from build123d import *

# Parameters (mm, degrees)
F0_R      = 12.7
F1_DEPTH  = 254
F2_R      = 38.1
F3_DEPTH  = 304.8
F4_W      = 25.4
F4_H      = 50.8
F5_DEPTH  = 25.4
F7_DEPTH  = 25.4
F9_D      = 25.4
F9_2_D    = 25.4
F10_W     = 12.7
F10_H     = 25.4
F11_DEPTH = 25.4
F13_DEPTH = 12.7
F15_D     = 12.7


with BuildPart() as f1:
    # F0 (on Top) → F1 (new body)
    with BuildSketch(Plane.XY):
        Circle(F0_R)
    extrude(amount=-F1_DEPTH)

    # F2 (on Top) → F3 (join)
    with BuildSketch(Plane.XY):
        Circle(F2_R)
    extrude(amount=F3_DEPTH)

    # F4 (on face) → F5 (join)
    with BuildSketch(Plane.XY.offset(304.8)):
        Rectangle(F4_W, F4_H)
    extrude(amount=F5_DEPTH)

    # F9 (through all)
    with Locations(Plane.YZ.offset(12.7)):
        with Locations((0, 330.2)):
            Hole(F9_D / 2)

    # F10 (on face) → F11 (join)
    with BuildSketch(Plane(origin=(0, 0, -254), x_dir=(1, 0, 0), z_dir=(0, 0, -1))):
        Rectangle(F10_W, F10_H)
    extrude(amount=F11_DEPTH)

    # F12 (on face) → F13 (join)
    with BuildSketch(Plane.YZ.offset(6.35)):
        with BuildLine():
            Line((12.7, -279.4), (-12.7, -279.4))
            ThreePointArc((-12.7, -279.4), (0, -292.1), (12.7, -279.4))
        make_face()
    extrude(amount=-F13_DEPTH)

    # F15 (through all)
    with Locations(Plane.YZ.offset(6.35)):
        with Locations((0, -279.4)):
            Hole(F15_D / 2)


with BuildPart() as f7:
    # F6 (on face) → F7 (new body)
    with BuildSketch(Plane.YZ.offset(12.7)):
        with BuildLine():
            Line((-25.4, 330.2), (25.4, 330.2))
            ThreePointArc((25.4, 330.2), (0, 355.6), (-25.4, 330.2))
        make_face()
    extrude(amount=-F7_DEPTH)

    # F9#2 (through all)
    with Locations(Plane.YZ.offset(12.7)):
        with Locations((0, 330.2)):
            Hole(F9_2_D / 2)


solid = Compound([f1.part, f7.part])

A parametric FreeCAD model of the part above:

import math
import FreeCAD as App
import Part
import Sketcher

V = App.Vector
Q = App.Units.Quantity

doc = App.newDocument("Part")
body = doc.addObject("PartDesign::Body", "Body")

# Sketch on XY plane
sketch1 = doc.addObject("Sketcher::SketchObject", "Sketch")
body.addObject(sketch1)
sketch1.AttachmentSupport = (doc.XY_Plane, [""])
sketch1.MapMode = "FlatFace"
sketch1.addGeometry(Part.Circle(V(0, 0, 0), V(0, 0, 1), 12.7), False)
sketch1.addConstraint(Sketcher.Constraint("Coincident", 0, 3, -1, 1))
sketch1.addConstraint(Sketcher.Constraint("Diameter", 0, Q("1 in")))
pad1 = doc.addObject("PartDesign::Pad", "Pad")
body.addObject(pad1)
pad1.Profile = sketch1
pad1.Length = Q("10 in")
pad1.Reversed = True

# Sketch on XY plane
sketch2 = doc.addObject("Sketcher::SketchObject", "Sketch001")
body.addObject(sketch2)
sketch2.AttachmentSupport = (doc.XY_Plane, [""])
sketch2.MapMode = "FlatFace"
sketch2.addGeometry(Part.Circle(V(0, 0, 0), V(0, 0, 1), 38.1), False)
sketch2.addConstraint(Sketcher.Constraint("Coincident", 0, 3, -1, 1))
sketch2.addConstraint(Sketcher.Constraint("Diameter", 0, Q("3 in")))
pad2 = doc.addObject("PartDesign::Pad", "Pad001")
body.addObject(pad2)
pad2.Profile = sketch2
pad2.Length = Q("12 in")

# Sketch on XY plane
sketch3 = doc.addObject("Sketcher::SketchObject", "Sketch002")
body.addObject(sketch3)
sketch3.AttachmentSupport = (doc.XY_Plane, [""])
sketch3.MapMode = "FlatFace"
sketch3.AttachmentOffset = App.Placement(V(0, 0, 12 * 25.4), App.Rotation())
sketch3.addGeometry(Part.LineSegment(V(-12.7, 25.4, 0), V(-12.7, -25.4, 0)), False)
sketch3.addGeometry(Part.LineSegment(V(-12.7, -25.4, 0), V(12.7, -25.4, 0)), False)
sketch3.addGeometry(Part.LineSegment(V(12.7, -25.4, 0), V(12.7, 25.4, 0)), False)
sketch3.addGeometry(Part.LineSegment(V(12.7, 25.4, 0), V(-12.7, 25.4, 0)), False)
sketch3.addConstraint(Sketcher.Constraint("Coincident", 0, 2, 1, 1))
sketch3.addConstraint(Sketcher.Constraint("Coincident", 1, 2, 2, 1))
sketch3.addConstraint(Sketcher.Constraint("Coincident", 2, 2, 3, 1))
sketch3.addConstraint(Sketcher.Constraint("Coincident", 3, 2, 0, 1))
sketch3.addConstraint(Sketcher.Constraint("Vertical", 0))
sketch3.addConstraint(Sketcher.Constraint("Horizontal", 1))
sketch3.addConstraint(Sketcher.Constraint("Vertical", 2))
sketch3.addConstraint(Sketcher.Constraint("Horizontal", 3))
sketch3.addConstraint(Sketcher.Constraint("Symmetric", 0, 2, 2, 2, -1, 1))
sketch3.addConstraint(Sketcher.Constraint("DistanceX", 1, 1, 1, 2, Q("1 in")))
sketch3.addConstraint(Sketcher.Constraint("DistanceY", 0, 2, 0, 1, Q("2 in")))
pad3 = doc.addObject("PartDesign::Pad", "Pad002")
body.addObject(pad3)
pad3.Profile = sketch3
pad3.Length = Q("1 in")

# Sketch on YZ plane
sketch4 = doc.addObject("Sketcher::SketchObject", "Sketch003")
body.addObject(sketch4)
sketch4.AttachmentSupport = (doc.YZ_Plane, [""])
sketch4.MapMode = "FlatFace"
sketch4.AttachmentOffset = App.Placement(V(0, 0, 0.5 * 25.4), App.Rotation())
sketch4.addGeometry(Part.Circle(V(0, 330.2, 0), V(0, 0, 1), 12.7), False)
sketch4.addConstraint(Sketcher.Constraint("PointOnObject", 0, 3, -2))
sketch4.addConstraint(Sketcher.Constraint("Diameter", 0, Q("1 in")))
sketch4.addConstraint(Sketcher.Constraint("DistanceY", -1, 1, 0, 3, Q("13 in")))
doc.recompute()
hole = doc.addObject("PartDesign::Hole", "Hole")
body.addObject(hole)
hole.Profile = sketch4
hole.ThreadType = "None"
hole.Diameter = Q("1 in")
hole.DepthType = "ThroughAll"

# Sketch on XY plane
sketch5 = doc.addObject("Sketcher::SketchObject", "Sketch004")
body.addObject(sketch5)
sketch5.AttachmentSupport = (doc.XY_Plane, [""])
sketch5.MapMode = "FlatFace"
sketch5.AttachmentOffset = App.Placement(V(0, 0, -10 * 25.4), App.Rotation())
sketch5.addGeometry(Part.LineSegment(V(-6.35, -12.7, 0), V(-6.35, 12.7, 0)), False)
sketch5.addGeometry(Part.LineSegment(V(-6.35, 12.7, 0), V(6.35, 12.7, 0)), False)
sketch5.addGeometry(Part.LineSegment(V(6.35, 12.7, 0), V(6.35, -12.7, 0)), False)
sketch5.addGeometry(Part.LineSegment(V(6.35, -12.7, 0), V(-6.35, -12.7, 0)), False)
sketch5.addConstraint(Sketcher.Constraint("Coincident", 0, 2, 1, 1))
sketch5.addConstraint(Sketcher.Constraint("Coincident", 1, 2, 2, 1))
sketch5.addConstraint(Sketcher.Constraint("Coincident", 2, 2, 3, 1))
sketch5.addConstraint(Sketcher.Constraint("Coincident", 3, 2, 0, 1))
sketch5.addConstraint(Sketcher.Constraint("Vertical", 0))
sketch5.addConstraint(Sketcher.Constraint("Horizontal", 1))
sketch5.addConstraint(Sketcher.Constraint("Vertical", 2))
sketch5.addConstraint(Sketcher.Constraint("Horizontal", 3))
sketch5.addConstraint(Sketcher.Constraint("Symmetric", 0, 2, 2, 2, -1, 1))
sketch5.addConstraint(Sketcher.Constraint("DistanceY", 0, 1, 0, 2, Q("1 in")))
sketch5.addConstraint(Sketcher.Constraint("DistanceX", 1, 1, 1, 2, Q("0.5 in")))
pad4 = doc.addObject("PartDesign::Pad", "Pad003")
body.addObject(pad4)
pad4.Profile = sketch5
pad4.Length = Q("1 in")
pad4.Reversed = True

# Sketch on YZ plane
sketch6 = doc.addObject("Sketcher::SketchObject", "Sketch005")
body.addObject(sketch6)
sketch6.AttachmentSupport = (doc.YZ_Plane, [""])
sketch6.MapMode = "FlatFace"
sketch6.AttachmentOffset = App.Placement(V(0, 0, 0.25 * 25.4), App.Rotation())
sketch6.addGeometry(Part.LineSegment(V(12.7, -279.4, 0), V(-12.7, -279.4, 0)), False)
sketch6.addGeometry(Part.ArcOfCircle(Part.Circle(V(0, -279.4, 0), V(0, 0, 1), 12.7), math.radians(180), math.radians(360)), False)
sketch6.addConstraint(Sketcher.Constraint("Coincident", 0, 1, 1, 2))
sketch6.addConstraint(Sketcher.Constraint("Coincident", 1, 1, 0, 2))
sketch6.addConstraint(Sketcher.Constraint("Horizontal", 0))
sketch6.addConstraint(Sketcher.Constraint("PointOnObject", 1, 3, -2))
sketch6.addConstraint(Sketcher.Constraint("Horizontal", 1, 3, 0, 1))
sketch6.addConstraint(Sketcher.Constraint("Radius", 1, Q("0.5 in")))
sketch6.addConstraint(Sketcher.Constraint("DistanceY", 1, 3, -1, 1, Q("11 in")))
pad5 = doc.addObject("PartDesign::Pad", "Pad004")
body.addObject(pad5)
pad5.Profile = sketch6
pad5.Length = Q("0.5 in")
pad5.Reversed = True

# Sketch on YZ plane
sketch7 = doc.addObject("Sketcher::SketchObject", "Sketch006")
body.addObject(sketch7)
sketch7.AttachmentSupport = (doc.YZ_Plane, [""])
sketch7.MapMode = "FlatFace"
sketch7.AttachmentOffset = App.Placement(V(0, 0, 0.25 * 25.4), App.Rotation())
sketch7.addGeometry(Part.Circle(V(0, -279.4, 0), V(0, 0, 1), 6.35), False)
sketch7.addConstraint(Sketcher.Constraint("PointOnObject", 0, 3, -2))
sketch7.addConstraint(Sketcher.Constraint("Diameter", 0, Q("0.5 in")))
sketch7.addConstraint(Sketcher.Constraint("DistanceY", 0, 3, -1, 1, Q("11 in")))
doc.recompute()
hole2 = doc.addObject("PartDesign::Hole", "Hole001")
body.addObject(hole2)
hole2.Profile = sketch7
hole2.ThreadType = "None"
hole2.Diameter = Q("0.5 in")
hole2.DepthType = "ThroughAll"
body2 = doc.addObject("PartDesign::Body", "Body001")

# Sketch on YZ plane
sketch8 = doc.addObject("Sketcher::SketchObject", "Sketch007")
body2.addObject(sketch8)
sketch8.AttachmentSupport = (doc.getObject("YZ_Plane001"), [""])
sketch8.MapMode = "FlatFace"
sketch8.AttachmentOffset = App.Placement(V(0, 0, 0.5 * 25.4), App.Rotation())
sketch8.addGeometry(Part.LineSegment(V(-25.4, 330.2, 0), V(25.4, 330.2, 0)), False)
sketch8.addGeometry(Part.ArcOfCircle(Part.Circle(V(0, 330.2, 0), V(0, 0, 1), 25.4), math.radians(0), math.radians(180)), False)
sketch8.addConstraint(Sketcher.Constraint("Coincident", 0, 1, 1, 2))
sketch8.addConstraint(Sketcher.Constraint("Coincident", 1, 1, 0, 2))
sketch8.addConstraint(Sketcher.Constraint("Horizontal", 0))
sketch8.addConstraint(Sketcher.Constraint("PointOnObject", 1, 3, -2))
sketch8.addConstraint(Sketcher.Constraint("Horizontal", 1, 3, 0, 1))
sketch8.addConstraint(Sketcher.Constraint("Radius", 1, Q("1 in")))
sketch8.addConstraint(Sketcher.Constraint("DistanceY", -1, 1, 1, 3, Q("13 in")))
pad6 = doc.addObject("PartDesign::Pad", "Pad005")
body2.addObject(pad6)
pad6.Profile = sketch8
pad6.Length = Q("1 in")
pad6.Reversed = True

# Sketch on YZ plane
sketch9 = doc.addObject("Sketcher::SketchObject", "Sketch008")
body2.addObject(sketch9)
sketch9.AttachmentSupport = (doc.getObject("YZ_Plane001"), [""])
sketch9.MapMode = "FlatFace"
sketch9.AttachmentOffset = App.Placement(V(0, 0, 0.5 * 25.4), App.Rotation())
sketch9.addGeometry(Part.Circle(V(0, 330.2, 0), V(0, 0, 1), 12.7), False)
sketch9.addConstraint(Sketcher.Constraint("PointOnObject", 0, 3, -2))
sketch9.addConstraint(Sketcher.Constraint("Diameter", 0, Q("1 in")))
sketch9.addConstraint(Sketcher.Constraint("DistanceY", -1, 1, 0, 3, Q("13 in")))
doc.recompute()
hole3 = doc.addObject("PartDesign::Hole", "Hole002")
body2.addObject(hole3)
hole3.Profile = sketch9
hole3.ThreadType = "None"
hole3.Diameter = Q("1 in")
hole3.DepthType = "ThroughAll"

doc.recompute()
